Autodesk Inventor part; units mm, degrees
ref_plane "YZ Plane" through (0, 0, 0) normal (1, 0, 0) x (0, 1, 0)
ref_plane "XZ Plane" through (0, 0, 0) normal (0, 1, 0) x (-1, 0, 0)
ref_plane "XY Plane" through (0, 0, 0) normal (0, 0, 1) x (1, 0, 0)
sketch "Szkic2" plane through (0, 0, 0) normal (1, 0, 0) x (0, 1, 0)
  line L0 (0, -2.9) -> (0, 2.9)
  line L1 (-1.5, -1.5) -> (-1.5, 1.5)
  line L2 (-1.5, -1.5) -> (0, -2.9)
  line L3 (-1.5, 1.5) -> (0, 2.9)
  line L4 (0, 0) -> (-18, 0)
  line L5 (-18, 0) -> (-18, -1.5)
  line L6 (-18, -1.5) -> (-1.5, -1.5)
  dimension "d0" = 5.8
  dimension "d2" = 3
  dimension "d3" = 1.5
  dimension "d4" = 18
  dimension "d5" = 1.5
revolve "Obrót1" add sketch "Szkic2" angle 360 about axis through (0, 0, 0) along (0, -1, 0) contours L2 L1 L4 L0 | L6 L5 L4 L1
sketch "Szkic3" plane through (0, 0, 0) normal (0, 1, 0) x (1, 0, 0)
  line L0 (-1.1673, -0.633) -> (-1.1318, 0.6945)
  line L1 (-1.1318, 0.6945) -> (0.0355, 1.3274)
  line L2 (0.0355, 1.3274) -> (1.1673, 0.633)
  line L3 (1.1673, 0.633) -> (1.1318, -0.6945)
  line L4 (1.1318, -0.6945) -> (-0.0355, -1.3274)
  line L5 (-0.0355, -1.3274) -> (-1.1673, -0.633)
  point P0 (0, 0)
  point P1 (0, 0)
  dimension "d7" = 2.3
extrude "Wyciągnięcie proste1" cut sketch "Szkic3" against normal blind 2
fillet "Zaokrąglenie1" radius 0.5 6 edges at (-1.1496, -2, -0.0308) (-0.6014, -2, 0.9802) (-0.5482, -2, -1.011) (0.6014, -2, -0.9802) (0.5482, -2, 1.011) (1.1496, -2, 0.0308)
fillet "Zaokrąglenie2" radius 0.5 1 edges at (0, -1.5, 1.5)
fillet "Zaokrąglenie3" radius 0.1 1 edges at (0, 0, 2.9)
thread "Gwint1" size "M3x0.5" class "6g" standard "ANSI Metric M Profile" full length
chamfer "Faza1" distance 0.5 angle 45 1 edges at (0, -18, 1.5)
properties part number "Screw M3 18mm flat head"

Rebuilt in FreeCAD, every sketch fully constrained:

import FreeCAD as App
import Part
import Sketcher

V = App.Vector
Q = App.Units.Quantity


def edges_at(feature, points):
    """Names of the edges that pass closest to the given points."""
    edges = feature.Shape.Edges
    near = lambda p: min(range(len(edges)), key=lambda i: edges[i].distToShape(Part.Vertex(*p))[0])
    return sorted({f"Edge{near(p) + 1}" for p in points})

doc = App.newDocument("Part")
params = doc.addObject("Spreadsheet::Sheet", "Params")
for row, (alias, value) in enumerate([
    ("sketch1_width", "18 mm"),
    ("sketch1_height", "1.5 mm"),
    ("sketch1_height2", "2.9 mm"),
    ("revolution_angle", "360 deg"),
    ("pocket1_length", "2 mm"),
    ("fillet_radius", "0.5 mm"),
    ("fillet2_radius", "0.5 mm"),
    ("fillet3_radius", "0.1 mm"),
    ("chamfer_size", "0.5 mm"),
], start=1):
    params.set(f"A{row}", alias)
    params.set(f"B{row}", "=" + value)
    params.setAlias(f"B{row}", alias)

body = doc.addObject("PartDesign::Body", "Body")

sketch1 = body.newObject("Sketcher::SketchObject", "Sketch")
sketch1.AttachmentSupport = (doc.getObject("YZ_Plane"), [""])
sketch1.MapMode = "FlatFace"
sketch1.addGeometry([
    Part.LineSegment(V(-1.5, -1.5, 0), V(0, -2.9, 0)),
    Part.LineSegment(V(0, -2.9, 0), V(0, 0, 0)),
    Part.LineSegment(V(0, 0, 0), V(-18, 0, 0)),
    Part.LineSegment(V(-18, 0, 0), V(-18, -1.5, 0)),
    Part.LineSegment(V(-18, -1.5, 0), V(-1.5, -1.5, 0)),
], False)
sketch1.addConstraint([
    Sketcher.Constraint("Coincident", 0, 2, 1, 1),
    Sketcher.Constraint("Coincident", 1, 2, 2, 1),
    Sketcher.Constraint("Coincident", 2, 2, 3, 1),
    Sketcher.Constraint("Coincident", 3, 2, 4, 1),
    Sketcher.Constraint("Coincident", 4, 2, 0, 1),
    Sketcher.Constraint("Vertical", 1),
    Sketcher.Constraint("Horizontal", 2),
    Sketcher.Constraint("Vertical", 3),
    Sketcher.Constraint("Horizontal", 4),
    Sketcher.Constraint("Coincident", 1, 2, -1, 1),
    Sketcher.Constraint("DistanceX", 2, 2, 2, 1, 18.0),
    Sketcher.Constraint("DistanceY", 3, 2, 3, 1, 1.5),
    Sketcher.Constraint("DistanceX", 4, 2, -1, 1, 1.5),
    Sketcher.Constraint("DistanceY", 1, 1, 1, 2, 2.9),
])
sketch1.setExpression("Constraints[10]", "Params.sketch1_width")
sketch1.setExpression("Constraints[11]", "Params.sketch1_height")
sketch1.setExpression("Constraints[13]", "Params.sketch1_height2")
revolution = body.newObject("PartDesign::Revolution", "Revolution")
revolution.Profile = sketch1
revolution.ReferenceAxis = (sketch1, ["H_Axis"])
revolution.setExpression("Angle", "Params.revolution_angle")

sketch2 = body.newObject("Sketcher::SketchObject", "Sketch001")
sketch2.AttachmentSupport = (doc.getObject("XZ_Plane"), [""])
sketch2.MapMode = "FlatFace"
sketch2.addGeometry([
    Part.LineSegment(V(-1.1318, -0.6945, 0), V(-1.1673, 0.633, 0)),
    Part.LineSegment(V(-1.1673, 0.633, 0), V(-0.0355, 1.3274, 0)),
    Part.LineSegment(V(-0.0355, 1.3274, 0), V(1.1318, 0.6945, 0)),
    Part.LineSegment(V(1.1318, 0.6945, 0), V(1.1673, -0.633, 0)),
    Part.LineSegment(V(1.1673, -0.633, 0), V(0.0355, -1.3274, 0)),
    Part.LineSegment(V(0.0355, -1.3274, 0), V(-1.1318, -0.6945, 0)),
], False)
sketch2.addConstraint([
    Sketcher.Constraint("Coincident", 0, 2, 1, 1),
    Sketcher.Constraint("Coincident", 1, 2, 2, 1),
    Sketcher.Constraint("Coincident", 2, 2, 3, 1),
    Sketcher.Constraint("Coincident", 3, 2, 4, 1),
    Sketcher.Constraint("Coincident", 4, 2, 5, 1),
    Sketcher.Constraint("Coincident", 5, 2, 0, 1),
    Sketcher.Constraint("Symmetric", 0, 2, 3, 2, -1, 1),
    Sketcher.Constraint("Symmetric", 1, 2, 4, 2, -1, 1),
    Sketcher.Constraint("Symmetric", 2, 2, 5, 2, -1, 1),
    Sketcher.Constraint("Equal", 0, 1),
    Sketcher.Constraint("Equal", 1, 2),
    Sketcher.Constraint("Angle", 1, Q("31.5306 deg")),
    Sketcher.Constraint("Distance", 0, 1.328),
    Sketcher.Constraint("DistanceY", -1, 1, 0, 2, 0.633),
    Sketcher.Constraint("DistanceY", 2, 2, 1, 2, 0.633),
])
pocket1 = body.newObject("PartDesign::Pocket", "Pocket")
pocket1.Profile = sketch2
pocket1.setExpression("Length", "Params.pocket1_length")
pocket1.Reversed = True
doc.recompute()

fillet = body.newObject("PartDesign::Fillet", "Fillet")
fillet.Base = (pocket1, edges_at(pocket1, [
    (-1.15, -2, -0.031),
    (-0.601, -2, 0.98),
    (-0.548, -2, -1.011),
    (0.601, -2, -0.98),
    (0.548, -2, 1.011),
    (1.15, -2, 0.031),
]))
fillet.setExpression("Radius", "Params.fillet_radius")
doc.recompute()

fillet2 = body.newObject("PartDesign::Fillet", "Fillet001")
fillet2.Base = (fillet, edges_at(fillet, [(0, -1.5, 1.5)]))
fillet2.setExpression("Radius", "Params.fillet2_radius")
doc.recompute()

fillet3 = body.newObject("PartDesign::Fillet", "Fillet002")
fillet3.Base = (fillet2, edges_at(fillet2, [(0, 0, 2.9)]))
fillet3.setExpression("Radius", "Params.fillet3_radius")
doc.recompute()

chamfer = body.newObject("PartDesign::Chamfer", "Chamfer")
chamfer.Base = (fillet3, edges_at(fillet3, [(0, -18, 1.5)]))
chamfer.setExpression("Size", "Params.chamfer_size")

doc.recompute()
